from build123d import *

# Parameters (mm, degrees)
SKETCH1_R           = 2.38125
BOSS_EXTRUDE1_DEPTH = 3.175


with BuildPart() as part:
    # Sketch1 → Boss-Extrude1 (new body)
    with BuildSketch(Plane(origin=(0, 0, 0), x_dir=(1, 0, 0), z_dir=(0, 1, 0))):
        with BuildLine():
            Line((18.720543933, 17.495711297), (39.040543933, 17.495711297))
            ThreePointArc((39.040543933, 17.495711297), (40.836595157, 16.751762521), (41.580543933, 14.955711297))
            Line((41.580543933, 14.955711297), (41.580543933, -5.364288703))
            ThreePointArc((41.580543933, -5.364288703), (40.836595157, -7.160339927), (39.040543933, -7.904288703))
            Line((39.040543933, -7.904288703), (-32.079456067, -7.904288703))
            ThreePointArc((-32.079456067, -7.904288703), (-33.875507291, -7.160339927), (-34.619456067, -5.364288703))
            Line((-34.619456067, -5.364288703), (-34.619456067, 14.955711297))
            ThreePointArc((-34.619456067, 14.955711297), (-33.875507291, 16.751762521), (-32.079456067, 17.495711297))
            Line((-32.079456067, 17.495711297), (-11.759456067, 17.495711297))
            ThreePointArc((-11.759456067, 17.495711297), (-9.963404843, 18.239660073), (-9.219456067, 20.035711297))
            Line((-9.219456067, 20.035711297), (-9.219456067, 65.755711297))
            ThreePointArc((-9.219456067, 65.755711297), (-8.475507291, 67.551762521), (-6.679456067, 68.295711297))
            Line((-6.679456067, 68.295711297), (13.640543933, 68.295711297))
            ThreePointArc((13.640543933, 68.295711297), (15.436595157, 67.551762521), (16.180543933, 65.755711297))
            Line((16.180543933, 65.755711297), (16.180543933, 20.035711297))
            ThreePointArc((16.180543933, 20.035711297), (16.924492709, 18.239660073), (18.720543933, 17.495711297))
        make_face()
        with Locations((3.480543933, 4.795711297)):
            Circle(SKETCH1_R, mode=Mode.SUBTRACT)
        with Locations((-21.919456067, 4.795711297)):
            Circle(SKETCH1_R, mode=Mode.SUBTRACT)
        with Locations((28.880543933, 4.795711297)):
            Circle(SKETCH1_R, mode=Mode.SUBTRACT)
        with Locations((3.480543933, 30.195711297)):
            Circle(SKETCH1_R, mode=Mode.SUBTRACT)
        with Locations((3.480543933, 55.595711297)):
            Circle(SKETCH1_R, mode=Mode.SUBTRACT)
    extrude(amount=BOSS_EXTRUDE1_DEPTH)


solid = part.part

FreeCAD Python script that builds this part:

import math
import FreeCAD as App
import Part
import Sketcher
Q = App.Units.Quantity

doc = App.newDocument("Part")
body = doc.addObject("PartDesign::Body", "Body")

sketch1 = body.newObject("Sketcher::SketchObject", "Sketch")
sketch1.AttachmentSupport = (doc.getObject("XZ_Plane"), [""])
sketch1.MapMode = "FlatFace"
sketch1.addGeometry(Part.LineSegment(App.Vector(39, -17.5, 0), App.Vector(18.7, -17.5, 0)), False)
sketch1.addGeometry(Part.ArcOfCircle(Part.Circle(App.Vector(18.7, -20, 0), App.Vector(0, 0, 1), 2.5), math.radians(90), math.radians(180)), False)
sketch1.addGeometry(Part.LineSegment(App.Vector(16.2, -20, 0), App.Vector(16.2, -65.8, 0)), False)
sketch1.addGeometry(Part.ArcOfCircle(Part.Circle(App.Vector(13.6, -65.8, 0), App.Vector(0, 0, 1), 2.5), math.radians(-90), math.radians(0)), False)
sketch1.addGeometry(Part.LineSegment(App.Vector(13.6, -68.3, 0), App.Vector(-6.7, -68.3, 0)), False)
sketch1.addGeometry(Part.ArcOfCircle(Part.Circle(App.Vector(-6.7, -65.8, 0), App.Vector(0, 0, 1), 2.5), math.radians(-180), math.radians(-90)), False)
sketch1.addGeometry(Part.LineSegment(App.Vector(-9.2, -65.8, 0), App.Vector(-9.2, -20, 0)), False)
sketch1.addGeometry(Part.ArcOfCircle(Part.Circle(App.Vector(-11.8, -20, 0), App.Vector(0, 0, 1), 2.5), math.radians(0), math.radians(90)), False)
sketch1.addGeometry(Part.LineSegment(App.Vector(-11.8, -17.5, 0), App.Vector(-32.1, -17.5, 0)), False)
sketch1.addGeometry(Part.ArcOfCircle(Part.Circle(App.Vector(-32.1, -15, 0), App.Vector(0, 0, 1), 2.5), math.radians(-180), math.radians(-90)), False)
sketch1.addGeometry(Part.LineSegment(App.Vector(-34.6, -15, 0), App.Vector(-34.6, 5.4, 0)), False)
sketch1.addGeometry(Part.ArcOfCircle(Part.Circle(App.Vector(-32.1, 5.4, 0), App.Vector(0, 0, 1), 2.5), math.radians(90), math.radians(180)), False)
sketch1.addGeometry(Part.LineSegment(App.Vector(-32.1, 7.9, 0), App.Vector(39, 7.9, 0)), False)
sketch1.addGeometry(Part.ArcOfCircle(Part.Circle(App.Vector(39, 5.4, 0), App.Vector(0, 0, 1), 2.5), math.radians(0), math.radians(90)), False)
sketch1.addGeometry(Part.LineSegment(App.Vector(41.6, 5.4, 0), App.Vector(41.6, -15, 0)), False)
sketch1.addGeometry(Part.ArcOfCircle(Part.Circle(App.Vector(39, -15, 0), App.Vector(0, 0, 1), 2.5), math.radians(-90), math.radians(0)), False)
sketch1.addGeometry(Part.Circle(App.Vector(28.9, -4.8, 0), App.Vector(0, 0, 1), 2.4), False)
sketch1.addGeometry(Part.Circle(App.Vector(3.5, -4.8, 0), App.Vector(0, 0, 1), 2.4), False)
sketch1.addGeometry(Part.Circle(App.Vector(-21.9, -4.8, 0), App.Vector(0, 0, 1), 2.4), False)
sketch1.addGeometry(Part.Circle(App.Vector(3.5, -30.2, 0), App.Vector(0, 0, 1), 2.4), False)
sketch1.addGeometry(Part.Circle(App.Vector(3.5, -55.6, 0), App.Vector(0, 0, 1), 2.4), False)
sketch1.addConstraint(Sketcher.Constraint("Tangent", 0, 2, 1, 1))
sketch1.addConstraint(Sketcher.Constraint("Tangent", 1, 2, 2, 1))
sketch1.addConstraint(Sketcher.Constraint("Tangent", 2, 2, 3, 2))
sketch1.addConstraint(Sketcher.Constraint("Tangent", 3, 1, 4, 1))
sketch1.addConstraint(Sketcher.Constraint("Tangent", 4, 2, 5, 2))
sketch1.addConstraint(Sketcher.Constraint("Tangent", 5, 1, 6, 1))
sketch1.addConstraint(Sketcher.Constraint("Tangent", 6, 2, 7, 1))
sketch1.addConstraint(Sketcher.Constraint("Tangent", 7, 2, 8, 1))
sketch1.addConstraint(Sketcher.Constraint("Tangent", 8, 2, 9, 2))
sketch1.addConstraint(Sketcher.Constraint("Tangent", 9, 1, 10, 1))
sketch1.addConstraint(Sketcher.Constraint("Tangent", 10, 2, 11, 2))
sketch1.addConstraint(Sketcher.Constraint("Tangent", 11, 1, 12, 1))
sketch1.addConstraint(Sketcher.Constraint("Tangent", 12, 2, 13, 2))
sketch1.addConstraint(Sketcher.Constraint("Tangent", 13, 1, 14, 1))
sketch1.addConstraint(Sketcher.Constraint("Tangent", 14, 2, 15, 2))
sketch1.addConstraint(Sketcher.Constraint("Tangent", 15, 1, 0, 1))
sketch1.addConstraint(Sketcher.Constraint("Horizontal", 0))
sketch1.addConstraint(Sketcher.Constraint("Vertical", 2))
sketch1.addConstraint(Sketcher.Constraint("Horizontal", 4))
sketch1.addConstraint(Sketcher.Constraint("Vertical", 6))
sketch1.addConstraint(Sketcher.Constraint("Horizontal", 8))
sketch1.addConstraint(Sketcher.Constraint("Vertical", 10))
sketch1.addConstraint(Sketcher.Constraint("Horizontal", 12))
sketch1.addConstraint(Sketcher.Constraint("Vertical", 14))
sketch1.addConstraint(Sketcher.Constraint("Equal", 1, 3))
sketch1.addConstraint(Sketcher.Constraint("Equal", 3, 5))
sketch1.addConstraint(Sketcher.Constraint("Equal", 5, 7))
sketch1.addConstraint(Sketcher.Constraint("Equal", 7, 9))
sketch1.addConstraint(Sketcher.Constraint("Equal", 9, 11))
sketch1.addConstraint(Sketcher.Constraint("Equal", 11, 13))
sketch1.addConstraint(Sketcher.Constraint("Equal", 13, 15))
sketch1.addConstraint(Sketcher.Constraint("Equal", 16, 17))
sketch1.addConstraint(Sketcher.Constraint("Equal", 17, 18))
sketch1.addConstraint(Sketcher.Constraint("Equal", 18, 19))
sketch1.addConstraint(Sketcher.Constraint("Equal", 19, 20))
sketch1.addConstraint(Sketcher.Constraint("Horizontal", 1, 3, 7, 3))
sketch1.addConstraint(Sketcher.Constraint("Horizontal", 16, 3, 17, 3))
sketch1.addConstraint(Sketcher.Constraint("Horizontal", 17, 3, 18, 3))
sketch1.addConstraint(Sketcher.Constraint("Vertical", 17, 3, 19, 3))
sketch1.addConstraint(Sketcher.Constraint("Vertical", 19, 3, 20, 3))
sketch1.addConstraint(Sketcher.Constraint("Equal", 0, 4))
sketch1.addConstraint(Sketcher.Constraint("Equal", 4, 8))
sketch1.addConstraint(Sketcher.Constraint("Equal", 8, 10))
sketch1.addConstraint(Sketcher.Constraint("Radius", 1, Q("0.1 in")))
sketch1.addConstraint(Sketcher.Constraint("Diameter", 16, Q("0.1875 in")))
sketch1.addConstraint(Sketcher.Constraint("DistanceX", 0, 2, 0, 1, Q("0.8 in")))
sketch1.addConstraint(Sketcher.Constraint("DistanceY", 2, 2, 2, 1, Q("1.8 in")))
sketch1.addConstraint(Sketcher.Constraint("DistanceX", 17, 3, 16, 3, Q("1 in")))
sketch1.addConstraint(Sketcher.Constraint("DistanceX", 18, 3, 17, 3, Q("1 in")))
sketch1.addConstraint(Sketcher.Constraint("DistanceY", 19, 3, 17, 3, Q("1 in")))
sketch1.addConstraint(Sketcher.Constraint("DistanceY", 20, 3, 19, 3, Q("1 in")))
sketch1.addConstraint(Sketcher.Constraint("DistanceX", 16, 3, 13, 3, Q("0.4 in")))
sketch1.addConstraint(Sketcher.Constraint("DistanceY", 16, 3, 13, 3, Q("0.4 in")))
sketch1.addConstraint(Sketcher.Constraint("DistanceY", 1, 3, -1, 1, Q("20.035711 mm")))
sketch1.addConstraint(Sketcher.Constraint("DistanceX", -1, 1, 1, 3, Q("18.720544 mm")))
pad1 = body.newObject("PartDesign::Pad", "Pad")
pad1.Profile = sketch1
pad1.Length = Q("0.125 in")
pad1.Reversed = True

doc.recompute()
